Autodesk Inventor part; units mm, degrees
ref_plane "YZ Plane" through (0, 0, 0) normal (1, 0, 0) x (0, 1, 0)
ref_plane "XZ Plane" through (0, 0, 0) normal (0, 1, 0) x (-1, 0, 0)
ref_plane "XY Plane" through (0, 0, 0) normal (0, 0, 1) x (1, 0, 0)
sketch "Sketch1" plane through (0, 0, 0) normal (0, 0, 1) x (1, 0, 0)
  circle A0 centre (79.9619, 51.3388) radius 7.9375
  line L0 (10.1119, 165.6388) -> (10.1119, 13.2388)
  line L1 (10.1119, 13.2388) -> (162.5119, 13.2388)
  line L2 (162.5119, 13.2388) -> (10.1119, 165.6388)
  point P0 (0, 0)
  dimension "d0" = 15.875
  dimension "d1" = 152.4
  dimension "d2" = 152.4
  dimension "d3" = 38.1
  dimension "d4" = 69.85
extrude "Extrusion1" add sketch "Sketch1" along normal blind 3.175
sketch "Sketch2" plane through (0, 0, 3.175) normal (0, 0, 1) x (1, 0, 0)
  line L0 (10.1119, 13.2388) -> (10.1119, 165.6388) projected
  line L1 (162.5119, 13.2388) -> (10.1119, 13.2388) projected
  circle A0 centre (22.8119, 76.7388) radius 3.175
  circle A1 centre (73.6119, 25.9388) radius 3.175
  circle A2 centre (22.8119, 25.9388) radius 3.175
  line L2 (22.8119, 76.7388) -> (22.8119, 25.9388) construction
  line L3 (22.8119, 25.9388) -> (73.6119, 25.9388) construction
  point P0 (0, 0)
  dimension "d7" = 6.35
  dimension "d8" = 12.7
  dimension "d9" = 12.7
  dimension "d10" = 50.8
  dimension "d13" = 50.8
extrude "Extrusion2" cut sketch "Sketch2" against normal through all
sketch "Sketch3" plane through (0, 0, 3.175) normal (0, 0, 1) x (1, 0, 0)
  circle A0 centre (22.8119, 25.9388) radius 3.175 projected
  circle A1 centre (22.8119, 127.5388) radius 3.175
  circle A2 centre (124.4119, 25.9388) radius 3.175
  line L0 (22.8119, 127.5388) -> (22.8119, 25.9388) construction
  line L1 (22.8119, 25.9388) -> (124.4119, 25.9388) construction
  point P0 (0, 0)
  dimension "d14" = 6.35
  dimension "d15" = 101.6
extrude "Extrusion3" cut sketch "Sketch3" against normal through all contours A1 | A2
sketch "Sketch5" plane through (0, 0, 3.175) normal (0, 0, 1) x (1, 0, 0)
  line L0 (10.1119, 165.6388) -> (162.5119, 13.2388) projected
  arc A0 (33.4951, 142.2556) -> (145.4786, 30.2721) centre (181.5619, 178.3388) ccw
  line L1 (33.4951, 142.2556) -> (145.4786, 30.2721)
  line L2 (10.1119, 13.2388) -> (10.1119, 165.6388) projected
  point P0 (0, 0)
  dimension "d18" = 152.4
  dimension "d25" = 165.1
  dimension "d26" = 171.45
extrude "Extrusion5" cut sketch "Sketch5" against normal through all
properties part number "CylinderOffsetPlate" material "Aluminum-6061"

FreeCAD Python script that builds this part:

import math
import FreeCAD as App
import Part
import Sketcher
Q = App.Units.Quantity

doc = App.newDocument("Part")
body = doc.addObject("PartDesign::Body", "Body")

# Sketch on XY plane
sketch1 = doc.addObject("Sketcher::SketchObject", "Sketch")
body.addObject(sketch1)
sketch1.AttachmentSupport = (doc.XY_Plane, [""])
sketch1.MapMode = "FlatFace"
sketch1.addGeometry(Part.LineSegment(App.Vector(162.5119, 13.2388, 0), App.Vector(10.1119, 165.6388, 0)), False)
sketch1.addGeometry(Part.LineSegment(App.Vector(10.1119, 165.6388, 0), App.Vector(10.1119, 13.2388, 0)), False)
sketch1.addGeometry(Part.LineSegment(App.Vector(10.1119, 13.2388, 0), App.Vector(162.5119, 13.2388, 0)), False)
sketch1.addGeometry(Part.Circle(App.Vector(79.9619, 51.3388, 0), App.Vector(0, 0, 1), 7.9375), False)
sketch1.addConstraint(Sketcher.Constraint("Coincident", 0, 2, 1, 1))
sketch1.addConstraint(Sketcher.Constraint("Coincident", 1, 2, 2, 1))
sketch1.addConstraint(Sketcher.Constraint("Coincident", 2, 2, 0, 1))
sketch1.addConstraint(Sketcher.Constraint("Vertical", 1))
sketch1.addConstraint(Sketcher.Constraint("Horizontal", 2))
sketch1.addConstraint(Sketcher.Constraint("Equal", 2, 1))
sketch1.addConstraint(Sketcher.Constraint("DistanceX", 2, 1, 2, 2, Q("6 in")))
sketch1.addConstraint(Sketcher.Constraint("Diameter", 3, Q("0.625 in")))
sketch1.addConstraint(Sketcher.Constraint("DistanceY", 1, 2, 3, 3, Q("1.5 in")))
sketch1.addConstraint(Sketcher.Constraint("DistanceX", 0, 2, 3, 3, Q("2.75 in")))
sketch1.addConstraint(Sketcher.Constraint("DistanceX", -1, 1, 3, 3, Q("3.1481 in")))
sketch1.addConstraint(Sketcher.Constraint("DistanceY", -1, 1, 3, 3, Q("51.3388 mm")))
pad1 = doc.addObject("PartDesign::Pad", "Pad")
body.addObject(pad1)
pad1.Profile = sketch1
pad1.Length = Q("0.125 in")

# Sketch on XY plane
sketch2 = doc.addObject("Sketcher::SketchObject", "Sketch001")
body.addObject(sketch2)
sketch2.AttachmentSupport = (doc.XY_Plane, [""])
sketch2.MapMode = "FlatFace"
sketch2.AttachmentOffset = App.Placement(App.Vector(0, 0, 0.125 * 25.4), App.Rotation())
sketch2.addGeometry(Part.Circle(App.Vector(22.8119, 76.7388, 0), App.Vector(0, 0, 1), 3.175), False)
sketch2.addGeometry(Part.Circle(App.Vector(73.6119, 25.9388, 0), App.Vector(0, 0, 1), 3.175), False)
sketch2.addGeometry(Part.Circle(App.Vector(22.8119, 25.9388, 0), App.Vector(0, 0, 1), 3.175), False)
sketch2.addConstraint(Sketcher.Constraint("Equal", 0, 1))
sketch2.addConstraint(Sketcher.Constraint("Equal", 1, 2))
sketch2.addConstraint(Sketcher.Constraint("Horizontal", 1, 3, 2, 3))
sketch2.addConstraint(Sketcher.Constraint("Vertical", 0, 3, 2, 3))
sketch2.addConstraint(Sketcher.Constraint("Diameter", 0, Q("0.25 in")))
sketch2.addConstraint(Sketcher.Constraint("DistanceX", 0, 3, 1, 3, Q("2 in")))
sketch2.addConstraint(Sketcher.Constraint("DistanceY", 1, 3, 0, 3, Q("2 in")))
sketch2.addConstraint(Sketcher.Constraint("DistanceX", -1, 1, 0, 3, Q("0.8981 in")))
sketch2.addConstraint(Sketcher.Constraint("DistanceY", -1, 1, 0, 3, Q("76.7388 mm")))
pocket1 = doc.addObject("PartDesign::Pocket", "Pocket")
body.addObject(pocket1)
pocket1.Profile = sketch2
pocket1.Type = "ThroughAll"

# Sketch on XY plane
sketch3 = doc.addObject("Sketcher::SketchObject", "Sketch002")
body.addObject(sketch3)
sketch3.AttachmentSupport = (doc.XY_Plane, [""])
sketch3.MapMode = "FlatFace"
sketch3.AttachmentOffset = App.Placement(App.Vector(0, 0, 0.125 * 25.4), App.Rotation())
sketch3.addGeometry(Part.Circle(App.Vector(22.8119, 127.5388, 0), App.Vector(0, 0, 1), 3.175), False)
sketch3.addGeometry(Part.Circle(App.Vector(124.4119, 25.9388, 0), App.Vector(0, 0, 1), 3.175), False)
sketch3.addConstraint(Sketcher.Constraint("Equal", 0, 1))
sketch3.addConstraint(Sketcher.Constraint("Diameter", 0, Q("0.25 in")))
sketch3.addConstraint(Sketcher.Constraint("DistanceX", 0, 3, 1, 3, Q("4 in")))
sketch3.addConstraint(Sketcher.Constraint("DistanceY", 1, 3, 0, 3, Q("4 in")))
sketch3.addConstraint(Sketcher.Constraint("DistanceX", -1, 1, 0, 3, Q("0.8981 in")))
sketch3.addConstraint(Sketcher.Constraint("DistanceY", -1, 1, 0, 3, Q("127.5388 mm")))
pocket2 = doc.addObject("PartDesign::Pocket", "Pocket001")
body.addObject(pocket2)
pocket2.Profile = sketch3
pocket2.Type = "ThroughAll"

# Sketch on XY plane
sketch4 = doc.addObject("Sketcher::SketchObject", "Sketch003")
body.addObject(sketch4)
sketch4.AttachmentSupport = (doc.XY_Plane, [""])
sketch4.MapMode = "FlatFace"
sketch4.AttachmentOffset = App.Placement(App.Vector(0, 0, 0.125 * 25.4), App.Rotation())
sketch4.addGeometry(Part.LineSegment(App.Vector(145.4786, 30.2721, 0), App.Vector(33.4951, 142.2556, 0)), False)
sketch4.addGeometry(Part.ArcOfCircle(Part.Circle(App.Vector(181.5619, 178.3388, 0), App.Vector(0, 0, 1), 152.400048), math.radians(-166.304235), math.radians(-103.69581)), False)
sketch4.addConstraint(Sketcher.Constraint("Coincident", 0, 1, 1, 2))
sketch4.addConstraint(Sketcher.Constraint("Coincident", 1, 1, 0, 2))
sketch4.addConstraint(Sketcher.Constraint("Radius", 1, Q("6 in")))
sketch4.addConstraint(Sketcher.Constraint("Angle", 0, Q("135 deg")))
sketch4.addConstraint(Sketcher.Constraint("DistanceX", -1, 1, 1, 3, Q("7.1481 in")))
sketch4.addConstraint(Sketcher.Constraint("DistanceX", -1, 1, 0, 1, Q("5.7275 in")))
sketch4.addConstraint(Sketcher.Constraint("DistanceY", -1, 1, 1, 3, Q("178.3388 mm")))
pocket3 = doc.addObject("PartDesign::Pocket", "Pocket002")
body.addObject(pocket3)
pocket3.Profile = sketch4
pocket3.Type = "ThroughAll"

doc.recompute()
